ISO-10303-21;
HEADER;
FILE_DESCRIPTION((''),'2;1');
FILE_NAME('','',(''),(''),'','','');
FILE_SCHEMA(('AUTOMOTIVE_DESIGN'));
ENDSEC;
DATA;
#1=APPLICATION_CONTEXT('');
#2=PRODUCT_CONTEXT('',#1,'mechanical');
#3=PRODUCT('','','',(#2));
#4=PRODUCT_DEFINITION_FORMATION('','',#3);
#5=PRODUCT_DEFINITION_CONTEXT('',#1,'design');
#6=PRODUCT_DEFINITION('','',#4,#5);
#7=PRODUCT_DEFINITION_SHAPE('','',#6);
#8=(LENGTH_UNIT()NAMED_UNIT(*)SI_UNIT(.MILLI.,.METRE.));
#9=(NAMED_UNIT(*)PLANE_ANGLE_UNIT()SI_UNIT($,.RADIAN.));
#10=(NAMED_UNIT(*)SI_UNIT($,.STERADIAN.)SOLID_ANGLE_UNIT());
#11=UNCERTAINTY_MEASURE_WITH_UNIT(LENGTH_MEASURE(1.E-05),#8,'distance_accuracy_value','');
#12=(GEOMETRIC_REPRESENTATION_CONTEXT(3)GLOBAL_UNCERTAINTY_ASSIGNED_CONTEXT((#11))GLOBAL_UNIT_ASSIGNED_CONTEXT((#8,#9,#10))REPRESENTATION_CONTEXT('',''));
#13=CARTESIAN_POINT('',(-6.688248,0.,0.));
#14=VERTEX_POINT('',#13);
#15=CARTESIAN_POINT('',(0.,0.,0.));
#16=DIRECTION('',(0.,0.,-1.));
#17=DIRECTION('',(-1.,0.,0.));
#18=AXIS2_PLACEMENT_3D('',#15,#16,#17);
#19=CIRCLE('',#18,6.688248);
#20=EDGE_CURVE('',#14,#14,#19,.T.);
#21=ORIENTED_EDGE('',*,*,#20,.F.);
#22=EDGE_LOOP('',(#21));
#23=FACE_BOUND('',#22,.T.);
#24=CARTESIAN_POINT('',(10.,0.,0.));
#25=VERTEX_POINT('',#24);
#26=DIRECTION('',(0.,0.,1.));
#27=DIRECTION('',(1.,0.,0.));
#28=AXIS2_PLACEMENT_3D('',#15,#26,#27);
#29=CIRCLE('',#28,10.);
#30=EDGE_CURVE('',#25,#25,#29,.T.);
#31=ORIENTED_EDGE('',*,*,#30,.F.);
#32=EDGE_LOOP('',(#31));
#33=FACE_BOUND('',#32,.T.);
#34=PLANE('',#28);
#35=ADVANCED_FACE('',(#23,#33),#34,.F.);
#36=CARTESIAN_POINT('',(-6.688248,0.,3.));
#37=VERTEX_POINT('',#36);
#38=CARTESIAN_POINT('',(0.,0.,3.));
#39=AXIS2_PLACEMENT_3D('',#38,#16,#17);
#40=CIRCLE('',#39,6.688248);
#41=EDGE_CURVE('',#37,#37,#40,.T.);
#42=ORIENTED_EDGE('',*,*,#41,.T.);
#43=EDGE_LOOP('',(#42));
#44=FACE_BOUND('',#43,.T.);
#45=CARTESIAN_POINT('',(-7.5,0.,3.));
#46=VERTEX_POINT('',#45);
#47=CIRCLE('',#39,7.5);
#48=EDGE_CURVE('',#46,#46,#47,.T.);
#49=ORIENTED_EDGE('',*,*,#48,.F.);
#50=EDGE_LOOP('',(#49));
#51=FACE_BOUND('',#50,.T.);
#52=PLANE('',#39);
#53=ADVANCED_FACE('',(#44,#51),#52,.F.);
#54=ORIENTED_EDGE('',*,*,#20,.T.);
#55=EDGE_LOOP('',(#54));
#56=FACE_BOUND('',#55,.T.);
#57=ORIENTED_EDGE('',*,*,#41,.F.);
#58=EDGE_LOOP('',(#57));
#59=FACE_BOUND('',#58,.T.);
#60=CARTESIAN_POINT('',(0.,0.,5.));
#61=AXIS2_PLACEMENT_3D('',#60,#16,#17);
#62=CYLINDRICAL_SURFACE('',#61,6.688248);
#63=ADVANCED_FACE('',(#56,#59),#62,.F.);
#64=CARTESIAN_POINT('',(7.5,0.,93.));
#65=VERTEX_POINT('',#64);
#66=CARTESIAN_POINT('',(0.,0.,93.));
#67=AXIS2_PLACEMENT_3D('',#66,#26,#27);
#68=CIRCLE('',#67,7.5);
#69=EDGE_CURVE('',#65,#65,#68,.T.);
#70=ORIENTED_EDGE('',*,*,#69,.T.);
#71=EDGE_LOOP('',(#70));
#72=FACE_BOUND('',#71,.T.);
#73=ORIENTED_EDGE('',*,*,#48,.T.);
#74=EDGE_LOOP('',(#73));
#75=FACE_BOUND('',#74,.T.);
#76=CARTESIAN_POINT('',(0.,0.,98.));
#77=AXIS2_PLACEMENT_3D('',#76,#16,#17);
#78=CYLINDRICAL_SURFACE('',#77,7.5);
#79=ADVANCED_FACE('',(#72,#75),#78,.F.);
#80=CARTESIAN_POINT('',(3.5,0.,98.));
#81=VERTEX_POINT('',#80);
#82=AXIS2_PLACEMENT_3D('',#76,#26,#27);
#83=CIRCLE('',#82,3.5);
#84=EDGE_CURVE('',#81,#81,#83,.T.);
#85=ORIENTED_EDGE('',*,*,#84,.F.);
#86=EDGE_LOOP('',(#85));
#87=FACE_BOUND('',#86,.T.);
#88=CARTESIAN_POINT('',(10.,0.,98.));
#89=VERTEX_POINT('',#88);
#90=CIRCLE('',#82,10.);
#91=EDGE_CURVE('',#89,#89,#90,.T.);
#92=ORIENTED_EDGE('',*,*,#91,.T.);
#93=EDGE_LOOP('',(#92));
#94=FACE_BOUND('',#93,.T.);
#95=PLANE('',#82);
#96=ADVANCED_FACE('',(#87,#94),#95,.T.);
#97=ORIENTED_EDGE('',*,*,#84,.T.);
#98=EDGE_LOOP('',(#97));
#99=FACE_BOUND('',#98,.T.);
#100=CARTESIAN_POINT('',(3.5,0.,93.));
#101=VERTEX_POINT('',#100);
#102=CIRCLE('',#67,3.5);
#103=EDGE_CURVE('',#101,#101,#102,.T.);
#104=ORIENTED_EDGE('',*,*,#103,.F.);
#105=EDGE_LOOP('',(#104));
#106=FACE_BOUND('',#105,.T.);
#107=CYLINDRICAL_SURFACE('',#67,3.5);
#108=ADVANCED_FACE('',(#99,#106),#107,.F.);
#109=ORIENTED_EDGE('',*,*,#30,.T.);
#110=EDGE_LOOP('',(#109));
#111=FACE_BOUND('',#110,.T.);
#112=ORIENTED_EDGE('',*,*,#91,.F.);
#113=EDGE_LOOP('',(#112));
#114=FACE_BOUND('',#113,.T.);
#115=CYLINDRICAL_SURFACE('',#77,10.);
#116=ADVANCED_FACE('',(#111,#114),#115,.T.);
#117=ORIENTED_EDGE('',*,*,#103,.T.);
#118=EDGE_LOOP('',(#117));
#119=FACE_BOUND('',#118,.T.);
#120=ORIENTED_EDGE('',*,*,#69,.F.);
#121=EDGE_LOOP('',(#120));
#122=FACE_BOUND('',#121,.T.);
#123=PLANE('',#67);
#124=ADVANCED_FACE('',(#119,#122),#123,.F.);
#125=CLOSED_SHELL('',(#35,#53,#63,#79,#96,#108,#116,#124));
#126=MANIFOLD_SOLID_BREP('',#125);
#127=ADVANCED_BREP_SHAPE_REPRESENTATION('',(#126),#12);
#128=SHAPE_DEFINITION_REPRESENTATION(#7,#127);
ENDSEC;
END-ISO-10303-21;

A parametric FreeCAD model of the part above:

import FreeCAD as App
import Part
import Sketcher

V = App.Vector

doc = App.newDocument("Part")
body = doc.addObject("PartDesign::Body", "Body")

# Sketch on XY plane
sketch1 = body.newObject("Sketcher::SketchObject", "Sketch")
sketch1.AttachmentSupport = (doc.getObject("XY_Plane"), [""])
sketch1.MapMode = "FlatFace"
sketch1.addGeometry(Part.Circle(V(0, 0, 0), V(0, 0, 1), 10), False)
sketch1.addGeometry(Part.Circle(V(0, 0, 0), V(0, 0, 1), 8), False)
sketch1.addConstraint(Sketcher.Constraint("Coincident", 0, 3, -1, 1))
sketch1.addConstraint(Sketcher.Constraint("Coincident", 1, 3, -1, 1))
sketch1.addConstraint(Sketcher.Constraint("Diameter", 0, 20.0))
sketch1.addConstraint(Sketcher.Constraint("Diameter", 1, 15.0))
pad1 = body.newObject("PartDesign::Pad", "Pad")
pad1.Profile = sketch1
pad1.Length = 98

# Sketch on XY plane
sketch2 = body.newObject("Sketcher::SketchObject", "Sketch001")
sketch2.AttachmentSupport = (doc.getObject("XY_Plane"), [""])
sketch2.MapMode = "FlatFace"
sketch2.AttachmentOffset = App.Placement(V(0, 0, 98), App.Rotation())
sketch2.addGeometry(Part.Circle(V(0, 0, 0), V(0, 0, 1), 8), False)
sketch2.addConstraint(Sketcher.Constraint("Coincident", 0, 3, -1, 1))
sketch2.addConstraint(Sketcher.Constraint("Diameter", 0, 15.0))
pad2 = body.newObject("PartDesign::Pad", "Pad001")
pad2.Profile = sketch2
pad2.Length = 5
pad2.Reversed = True

# Sketch on XY plane
sketch3 = body.newObject("Sketcher::SketchObject", "Sketch002")
sketch3.AttachmentSupport = (doc.getObject("XY_Plane"), [""])
sketch3.MapMode = "FlatFace"
sketch3.AttachmentOffset = App.Placement(V(0, 0, 98), App.Rotation())
sketch3.addGeometry(Part.Circle(V(0, 0, 0), V(0, 0, 1), 3.5), False)
sketch3.addConstraint(Sketcher.Constraint("Coincident", 0, 3, -1, 1))
sketch3.addConstraint(Sketcher.Constraint("Diameter", 0, 7.0))
pocket1 = body.newObject("PartDesign::Pocket", "Pocket")
pocket1.Profile = sketch3
pocket1.Length = 5

# Sketch on XY plane
sketch4 = body.newObject("Sketcher::SketchObject", "Sketch003")
sketch4.AttachmentSupport = (doc.getObject("XY_Plane"), [""])
sketch4.MapMode = "FlatFace"
sketch4.addGeometry(Part.Circle(V(0, 0, 0), V(0, 0, 1), 8), False)
sketch4.addConstraint(Sketcher.Constraint("Coincident", 0, 3, -1, 1))
sketch4.addConstraint(Sketcher.Constraint("Diameter", 0, 15.0))
pad3 = body.newObject("PartDesign::Pad", "Pad002")
pad3.Profile = sketch4
pad3.Length = 3

# Sketch on XY plane
sketch5 = body.newObject("Sketcher::SketchObject", "Sketch004")
sketch5.AttachmentSupport = (doc.getObject("XY_Plane"), [""])
sketch5.MapMode = "FlatFace"
sketch5.addGeometry(Part.Circle(V(0, 0, 0), V(0, 0, 1), 7), False)
sketch5.addConstraint(Sketcher.Constraint("Coincident", 0, 3, -1, 1))
sketch5.addConstraint(Sketcher.Constraint("Diameter", 0, 13.376496))
pocket2 = body.newObject("PartDesign::Pocket", "Pocket001")
pocket2.Profile = sketch5
pocket2.Length = 5
pocket2.Reversed = True

doc.recompute()
